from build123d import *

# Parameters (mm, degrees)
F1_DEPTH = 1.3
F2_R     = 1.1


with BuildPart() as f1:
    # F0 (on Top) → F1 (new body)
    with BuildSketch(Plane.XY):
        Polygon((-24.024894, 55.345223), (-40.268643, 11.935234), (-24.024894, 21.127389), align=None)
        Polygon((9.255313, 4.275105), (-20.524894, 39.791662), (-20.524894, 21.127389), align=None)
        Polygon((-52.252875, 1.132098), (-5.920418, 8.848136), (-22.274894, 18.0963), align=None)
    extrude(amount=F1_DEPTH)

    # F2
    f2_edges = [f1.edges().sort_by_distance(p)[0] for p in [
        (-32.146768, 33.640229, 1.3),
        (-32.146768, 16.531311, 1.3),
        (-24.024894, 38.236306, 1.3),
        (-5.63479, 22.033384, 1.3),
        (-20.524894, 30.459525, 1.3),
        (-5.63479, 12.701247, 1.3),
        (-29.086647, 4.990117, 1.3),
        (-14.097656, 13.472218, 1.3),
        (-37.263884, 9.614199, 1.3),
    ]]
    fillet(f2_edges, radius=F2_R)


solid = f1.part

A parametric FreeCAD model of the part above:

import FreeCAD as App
import Part
import Sketcher


def edges_at(feature, points):
    """Names of the edges that pass closest to the given points."""
    edges = feature.Shape.Edges
    near = lambda p: min(range(len(edges)), key=lambda i: edges[i].distToShape(Part.Vertex(*p))[0])
    return sorted({f"Edge{near(p) + 1}" for p in points})


def add_polygon(sketch, points):
    """Adds a closed chain of lines whose ends are joined by coincident constraints."""
    first, n = sketch.GeometryCount, len(points)
    for a, b in zip(points, points[1:] + points[:1]):
        sketch.addGeometry(Part.LineSegment(App.Vector(*a, 0), App.Vector(*b, 0)), False)
    for i in range(n):
        sketch.addConstraint(Sketcher.Constraint("Coincident", first + i, 2, first + (i + 1) % n, 1))

doc = App.newDocument("Part")
params = doc.addObject("Spreadsheet::Sheet", "Params")
for row, (alias, value) in enumerate([
    ("pad1_length", "1.3 mm"),
    ("fillet_radius", "1.1 mm"),
], start=1):
    params.set(f"A{row}", alias)
    params.set(f"B{row}", "=" + value)
    params.setAlias(f"B{row}", alias)

body = doc.addObject("PartDesign::Body", "Body")
body.AllowCompound = True

sketch1 = body.newObject("Sketcher::SketchObject", "Sketch")
sketch1.AttachmentSupport = (doc.getObject("XY_Plane"), [""])
sketch1.MapMode = "FlatFace"
add_polygon(sketch1, [(-24, 55), (-40, 12), (-24, 21)])
add_polygon(sketch1, [(9, 4), (-21, 40), (-21, 21)])
add_polygon(sketch1, [(-52, 1), (-6, 9), (-22, 18)])
sketch1.addConstraint([
    Sketcher.Constraint("Vertical", 2),
    Sketcher.Constraint("Vertical", 4),
    Sketcher.Constraint("Parallel", 1, 8),
    Sketcher.Constraint("Horizontal", 1, 2, 4, 2),
    Sketcher.Constraint("Equal", 0, 3),
    Sketcher.Constraint("DistanceX", 2, 2, 3, 2, 3.5),
    Sketcher.Constraint("DistanceX", 1, 2, 7, 2, 1.75),
    Sketcher.Constraint("DistanceY", -1, 1, 7, 2, 18.0963),
    Sketcher.Constraint("DistanceY", 8, 2, 7, 2, 16.964202),
    Sketcher.Constraint("Distance", 0, 46.349612),
    Sketcher.Constraint("Distance", 8, 34.445079),
    Sketcher.Constraint("DistanceY", 2, 1, 2, 2, 34.217834),
    Sketcher.Constraint("DistanceY", 4, 2, 4, 1, 18.664273),
    Sketcher.Constraint("DistanceY", -1, 1, 1, 2, 21.127389),
    Sketcher.Constraint("DistanceY", 5, 2, 0, 2, 7.660129),
    Sketcher.Constraint("DistanceX", 6, 2, 5, 2, 15.175731),
    Sketcher.Constraint("DistanceY", 5, 2, 6, 2, 4.573031),
    Sketcher.Constraint("DistanceX", 0, 2, -1, 1, 40.268643),
])
pad1 = body.newObject("PartDesign::Pad", "Pad")
pad1.Profile = sketch1
pad1.setExpression("Length", "Params.pad1_length")
doc.recompute()

fillet = body.newObject("PartDesign::Fillet", "Fillet")
fillet.Base = (pad1, edges_at(pad1, [
    (-32.147, 33.64, 1.3),
    (-32.147, 16.531, 1.3),
    (-24.025, 38.236, 1.3),
    (-5.635, 22.033, 1.3),
    (-20.525, 30.46, 1.3),
    (-5.635, 12.701, 1.3),
    (-29.087, 4.99, 1.3),
    (-14.098, 13.472, 1.3),
    (-37.264, 9.614, 1.3),
]))
fillet.setExpression("Radius", "Params.fillet_radius")

doc.recompute()
